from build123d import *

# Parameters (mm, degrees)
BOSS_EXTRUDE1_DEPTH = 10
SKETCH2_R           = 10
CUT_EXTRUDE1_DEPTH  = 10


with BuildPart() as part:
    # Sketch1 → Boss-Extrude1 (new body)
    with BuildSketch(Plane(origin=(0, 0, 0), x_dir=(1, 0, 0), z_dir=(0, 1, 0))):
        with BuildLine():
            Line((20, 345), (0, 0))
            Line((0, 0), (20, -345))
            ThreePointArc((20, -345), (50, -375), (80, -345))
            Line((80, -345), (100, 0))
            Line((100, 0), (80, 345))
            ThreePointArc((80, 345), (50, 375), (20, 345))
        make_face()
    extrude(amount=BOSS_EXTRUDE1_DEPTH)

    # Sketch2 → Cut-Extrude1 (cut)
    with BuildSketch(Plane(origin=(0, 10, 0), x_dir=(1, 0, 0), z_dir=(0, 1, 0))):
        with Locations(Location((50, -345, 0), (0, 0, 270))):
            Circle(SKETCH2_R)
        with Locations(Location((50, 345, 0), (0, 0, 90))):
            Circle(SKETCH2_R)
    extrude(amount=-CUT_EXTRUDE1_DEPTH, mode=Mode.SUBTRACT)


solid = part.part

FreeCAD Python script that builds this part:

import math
import FreeCAD as App
import Part
import Sketcher
from FreeCAD import Vector

doc = App.newDocument("Part")
params = doc.addObject("Spreadsheet::Sheet", "Params")
for row, (alias, value) in enumerate([
    ("sketch1_radius", "30 mm"),
    ("pad1_length", "10 mm"),
    ("sketch2_diameter", "20 mm"),
    ("pocket1_length", "10 mm"),
], start=1):
    params.set(f"A{row}", alias)
    params.set(f"B{row}", "=" + value)
    params.setAlias(f"B{row}", alias)

body = doc.addObject("PartDesign::Body", "Body")

sketch1 = body.newObject("Sketcher::SketchObject", "Sketch")
sketch1.AttachmentSupport = (doc.getObject("XZ_Plane"), [""])
sketch1.MapMode = "FlatFace"
sketch1.addGeometry(Part.LineSegment(Vector(20, -345, 0), Vector(0, 0, 0)), False)
sketch1.addGeometry(Part.LineSegment(Vector(0, 0, 0), Vector(20, 345, 0)), False)
sketch1.addGeometry(Part.ArcOfCircle(Part.Circle(Vector(50, 345, 0), Vector(0, 0, 1), 30), math.radians(0), math.radians(180)), False)
sketch1.addGeometry(Part.LineSegment(Vector(80, 345, 0), Vector(100, 0, 0)), False)
sketch1.addGeometry(Part.LineSegment(Vector(100, 0, 0), Vector(80, -345, 0)), False)
sketch1.addGeometry(Part.ArcOfCircle(Part.Circle(Vector(50, -345, 0), Vector(0, 0, 1), 30), math.radians(180), math.radians(360)), False)
sketch1.addConstraint(Sketcher.Constraint("Coincident", 0, 2, 1, 1))
sketch1.addConstraint(Sketcher.Constraint("Coincident", 1, 2, 2, 2))
sketch1.addConstraint(Sketcher.Constraint("Coincident", 2, 1, 3, 1))
sketch1.addConstraint(Sketcher.Constraint("Coincident", 3, 2, 4, 1))
sketch1.addConstraint(Sketcher.Constraint("Coincident", 4, 2, 5, 2))
sketch1.addConstraint(Sketcher.Constraint("Coincident", 5, 1, 0, 1))
sketch1.addConstraint(Sketcher.Constraint("Coincident", 0, 2, -1, 1))
sketch1.addConstraint(Sketcher.Constraint("Equal", 2, 5))
sketch1.addConstraint(Sketcher.Constraint("Symmetric", 2, 3, 5, 3, -1))
sketch1.addConstraint(Sketcher.Constraint("PointOnObject", 3, 2, -1))
sketch1.addConstraint(Sketcher.Constraint("Parallel", 0, 3))
sketch1.addConstraint(Sketcher.Constraint("Parallel", 1, 4))
sketch1.addConstraint(Sketcher.Constraint("Horizontal", 2, 3, 1, 2))
sketch1.addConstraint(Sketcher.Constraint("Horizontal", 1, 2, 2, 1))
sketch1.addConstraint(Sketcher.Constraint("Horizontal", 5, 3, 4, 2))
sketch1.addConstraint(Sketcher.Constraint("Radius", 2, 30.0))
sketch1.addConstraint(Sketcher.Constraint("DistanceX", -1, 1, 2, 3, 50.0))
sketch1.addConstraint(Sketcher.Constraint("DistanceY", -1, 1, 2, 3, 345.0))
sketch1.setExpression("Constraints[15]", "Params.sketch1_radius")
pad1 = body.newObject("PartDesign::Pad", "Pad")
pad1.Profile = sketch1
pad1.setExpression("Length", "Params.pad1_length")
pad1.Reversed = True

sketch2 = body.newObject("Sketcher::SketchObject", "Sketch001")
sketch2.AttachmentSupport = (doc.getObject("XZ_Plane"), [""])
sketch2.MapMode = "FlatFace"
sketch2.AttachmentOffset = App.Placement(Vector(0, 0, -10), App.Rotation())
sketch2.addGeometry(Part.Circle(Vector(50, 345, 0), Vector(0, 0, 1), 10), False)
sketch2.addGeometry(Part.Circle(Vector(50, -345, 0), Vector(0, 0, 1), 10), False)
sketch2.addConstraint(Sketcher.Constraint("Equal", 0, 1))
sketch2.addConstraint(Sketcher.Constraint("Symmetric", 0, 3, 1, 3, -1))
sketch2.addConstraint(Sketcher.Constraint("Diameter", 0, 20.0))
sketch2.addConstraint(Sketcher.Constraint("DistanceX", -1, 1, 0, 3, 50.0))
sketch2.addConstraint(Sketcher.Constraint("DistanceY", -1, 1, 0, 3, 345.0))
sketch2.setExpression("Constraints[2]", "Params.sketch2_diameter")
pocket1 = body.newObject("PartDesign::Pocket", "Pocket")
pocket1.Profile = sketch2
pocket1.setExpression("Length", "Params.pocket1_length")
pocket1.Reversed = True

doc.recompute()
